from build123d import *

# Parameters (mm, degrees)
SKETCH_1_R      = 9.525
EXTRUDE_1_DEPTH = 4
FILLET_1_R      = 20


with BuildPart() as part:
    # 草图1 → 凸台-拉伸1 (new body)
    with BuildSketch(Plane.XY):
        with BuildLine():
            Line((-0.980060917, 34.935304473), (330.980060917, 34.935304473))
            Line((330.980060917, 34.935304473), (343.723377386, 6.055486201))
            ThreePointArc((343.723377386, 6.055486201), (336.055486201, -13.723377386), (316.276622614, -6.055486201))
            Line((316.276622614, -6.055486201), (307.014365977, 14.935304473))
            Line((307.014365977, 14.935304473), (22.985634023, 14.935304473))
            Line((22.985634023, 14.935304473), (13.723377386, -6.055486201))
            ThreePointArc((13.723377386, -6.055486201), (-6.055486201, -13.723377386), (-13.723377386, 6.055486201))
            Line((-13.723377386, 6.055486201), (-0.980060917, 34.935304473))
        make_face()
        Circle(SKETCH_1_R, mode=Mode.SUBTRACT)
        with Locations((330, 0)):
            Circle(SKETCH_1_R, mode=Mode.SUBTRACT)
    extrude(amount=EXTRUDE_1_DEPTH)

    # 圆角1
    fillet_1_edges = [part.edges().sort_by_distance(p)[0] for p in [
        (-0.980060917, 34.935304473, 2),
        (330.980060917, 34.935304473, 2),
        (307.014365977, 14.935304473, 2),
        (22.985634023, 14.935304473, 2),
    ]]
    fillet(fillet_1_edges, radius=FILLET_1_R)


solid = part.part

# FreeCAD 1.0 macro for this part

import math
import FreeCAD as App
import Part
import Sketcher
from FreeCAD import Vector


def edges_at(feature, points):
    """Names of the edges that pass closest to the given points."""
    edges = feature.Shape.Edges
    near = lambda p: min(range(len(edges)), key=lambda i: edges[i].distToShape(Part.Vertex(*p))[0])
    return sorted({f"Edge{near(p) + 1}" for p in points})

doc = App.newDocument("Part")
body = doc.addObject("PartDesign::Body", "Body")

# Sketch on XY plane
sketch1 = doc.addObject("Sketcher::SketchObject", "Sketch")
body.addObject(sketch1)
sketch1.AttachmentSupport = (doc.XY_Plane, [""])
sketch1.MapMode = "FlatFace"
sketch1.addGeometry([
    Part.LineSegment(Vector(330.980061, 34.935304, 0), Vector(-0.980061, 34.935304, 0)),  # 0
    Part.LineSegment(Vector(-0.980061, 34.935304, 0), Vector(-13.723377, 6.055486, 0)),  # 1
    Part.ArcOfCircle(Part.Circle(Vector(0, 0, 0), Vector(0, 0, 1), 15), math.radians(156.19037), math.radians(336.19037)),  # 2
    Part.LineSegment(Vector(13.723377, -6.055486, 0), Vector(22.985634, 14.935304, 0)),  # 3
    Part.LineSegment(Vector(22.985634, 14.935304, 0), Vector(307.014366, 14.935304, 0)),  # 4
    Part.LineSegment(Vector(307.014366, 14.935304, 0), Vector(316.276623, -6.055486, 0)),  # 5
    Part.ArcOfCircle(Part.Circle(Vector(330, 0, 0), Vector(0, 0, 1), 15), math.radians(-156.19037), math.radians(23.80963)),  # 6
    Part.LineSegment(Vector(343.723377, 6.055486, 0), Vector(330.980061, 34.935304, 0)),  # 7
    Part.Circle(Vector(330, 0, 0), Vector(0, 0, 1), 9.525),  # 8
    Part.Circle(Vector(0, 0, 0), Vector(0, 0, 1), 9.525),  # 9
], False)
sketch1.addConstraint([
    Sketcher.Constraint("Coincident", 0, 2, 1, 1),
    Sketcher.Constraint("Tangent", 1, 2, 2, 1),
    Sketcher.Constraint("Tangent", 2, 2, 3, 1),
    Sketcher.Constraint("Coincident", 3, 2, 4, 1),
    Sketcher.Constraint("Coincident", 4, 2, 5, 1),
    Sketcher.Constraint("Tangent", 5, 2, 6, 1),
    Sketcher.Constraint("Tangent", 6, 2, 7, 1),
    Sketcher.Constraint("Coincident", 7, 2, 0, 1),
    Sketcher.Constraint("Horizontal", 0),
    Sketcher.Constraint("Horizontal", 4),
    Sketcher.Constraint("Coincident", 2, 3, -1, 1),
    Sketcher.Constraint("Coincident", 9, 3, -1, 1),
    Sketcher.Constraint("Coincident", 8, 3, 6, 3),
    Sketcher.Constraint("Equal", 2, 6),
    Sketcher.Constraint("Equal", 8, 9),
    Sketcher.Constraint("PointOnObject", 6, 3, -1),
    Sketcher.Constraint("Parallel", 1, 3),
    Sketcher.Constraint("Parallel", 5, 7),
    Sketcher.Constraint("Horizontal", 2, 2, 5, 2),
    Sketcher.Constraint("Radius", 2, 15.0),
    Sketcher.Constraint("Diameter", 8, 19.05),
    Sketcher.Constraint("DistanceX", -1, 1, 6, 3, 330.0),
    Sketcher.Constraint("DistanceY", 3, 2, 0, 2, 20.0),
    Sketcher.Constraint("DistanceX", 0, 2, 0, 1, 331.960122),
    Sketcher.Constraint("DistanceX", 4, 1, 4, 2, 284.028732),
])
pad1 = doc.addObject("PartDesign::Pad", "Pad")
body.addObject(pad1)
pad1.Profile = sketch1
pad1.Length = 4
doc.recompute()

fillet = doc.addObject("PartDesign::Fillet", "Fillet")
body.addObject(fillet)
fillet.Base = (pad1, edges_at(pad1, [
    (-0.98, 34.935, 2),
    (330.98, 34.935, 2),
    (307.014, 14.935, 2),
    (22.986, 14.935, 2),
]))
fillet.Radius = 20

doc.recompute()
